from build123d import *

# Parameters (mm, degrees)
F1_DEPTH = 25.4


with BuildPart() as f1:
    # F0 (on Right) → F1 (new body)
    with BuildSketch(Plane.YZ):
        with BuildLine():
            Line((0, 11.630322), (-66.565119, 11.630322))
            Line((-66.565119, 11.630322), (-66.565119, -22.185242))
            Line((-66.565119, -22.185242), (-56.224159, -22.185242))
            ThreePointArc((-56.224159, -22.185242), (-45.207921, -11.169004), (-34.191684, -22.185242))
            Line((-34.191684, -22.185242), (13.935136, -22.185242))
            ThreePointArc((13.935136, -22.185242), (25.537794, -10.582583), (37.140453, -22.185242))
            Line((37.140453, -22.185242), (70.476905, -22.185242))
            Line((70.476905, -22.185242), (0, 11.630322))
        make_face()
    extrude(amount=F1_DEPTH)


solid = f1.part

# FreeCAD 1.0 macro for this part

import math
import FreeCAD as App
import Part
import Sketcher

V = App.Vector
Q = App.Units.Quantity

doc = App.newDocument("Part")
body = doc.addObject("PartDesign::Body", "Body")

sketch1 = body.newObject("Sketcher::SketchObject", "Sketch")
sketch1.AttachmentSupport = (doc.getObject("YZ_Plane"), [""])
sketch1.MapMode = "FlatFace"
sketch1.addGeometry([
    Part.LineSegment(V(0, 12, 0), V(-67, 12, 0)),
    Part.LineSegment(V(-67, 12, 0), V(-67, -22, 0)),
    Part.LineSegment(V(-67, -22, 0), V(-56, -22, 0)),
    Part.ArcOfCircle(Part.Circle(V(-45, -22, 0), V(0, 0, 1), 11), math.radians(0), math.radians(180)),
    Part.LineSegment(V(-34, -22, 0), V(14, -22, 0)),
    Part.ArcOfCircle(Part.Circle(V(26, -22, 0), V(0, 0, 1), 12), math.radians(0), math.radians(180)),
    Part.LineSegment(V(37, -22, 0), V(70, -22, 0)),
    Part.LineSegment(V(70, -22, 0), V(0, 12, 0)),
], False)
sketch1.addConstraint([
    Sketcher.Constraint("Coincident", 0, 2, 1, 1),
    Sketcher.Constraint("Coincident", 1, 2, 2, 1),
    Sketcher.Constraint("Coincident", 2, 2, 3, 2),
    Sketcher.Constraint("Coincident", 3, 1, 4, 1),
    Sketcher.Constraint("Coincident", 4, 2, 5, 2),
    Sketcher.Constraint("Coincident", 5, 1, 6, 1),
    Sketcher.Constraint("Coincident", 6, 2, 7, 1),
    Sketcher.Constraint("Coincident", 7, 2, 0, 1),
    Sketcher.Constraint("Horizontal", 0),
    Sketcher.Constraint("Vertical", 1),
    Sketcher.Constraint("Horizontal", 2),
    Sketcher.Constraint("Horizontal", 4),
    Sketcher.Constraint("Horizontal", 6),
    Sketcher.Constraint("PointOnObject", 7, 2, -2),
    Sketcher.Constraint("Horizontal", 3, 3, 5, 3),
    Sketcher.Constraint("Horizontal", 5, 3, 1, 2),
    Sketcher.Constraint("Horizontal", 2, 2, 3, 1),
    Sketcher.Constraint("Horizontal", 4, 2, 5, 1),
    Sketcher.Constraint("Radius", 5, 11.602659),
    Sketcher.Constraint("Radius", 3, 11.016238),
    Sketcher.Constraint("Distance", 7, 78.169601),
    Sketcher.Constraint("DistanceX", 0, 2, 0, 1, 66.565119),
    Sketcher.Constraint("DistanceX", 2, 1, 2, 2, 10.34096),
    Sketcher.Constraint("DistanceX", 4, 1, 4, 2, 48.12682),
    Sketcher.Constraint("DistanceX", 6, 1, 6, 2, 33.336452),
    Sketcher.Constraint("DistanceY", 3, 3, -1, 1, 22.185242),
])
pad1 = body.newObject("PartDesign::Pad", "Pad")
pad1.Profile = sketch1
pad1.Length = Q("1 in")

doc.recompute()
